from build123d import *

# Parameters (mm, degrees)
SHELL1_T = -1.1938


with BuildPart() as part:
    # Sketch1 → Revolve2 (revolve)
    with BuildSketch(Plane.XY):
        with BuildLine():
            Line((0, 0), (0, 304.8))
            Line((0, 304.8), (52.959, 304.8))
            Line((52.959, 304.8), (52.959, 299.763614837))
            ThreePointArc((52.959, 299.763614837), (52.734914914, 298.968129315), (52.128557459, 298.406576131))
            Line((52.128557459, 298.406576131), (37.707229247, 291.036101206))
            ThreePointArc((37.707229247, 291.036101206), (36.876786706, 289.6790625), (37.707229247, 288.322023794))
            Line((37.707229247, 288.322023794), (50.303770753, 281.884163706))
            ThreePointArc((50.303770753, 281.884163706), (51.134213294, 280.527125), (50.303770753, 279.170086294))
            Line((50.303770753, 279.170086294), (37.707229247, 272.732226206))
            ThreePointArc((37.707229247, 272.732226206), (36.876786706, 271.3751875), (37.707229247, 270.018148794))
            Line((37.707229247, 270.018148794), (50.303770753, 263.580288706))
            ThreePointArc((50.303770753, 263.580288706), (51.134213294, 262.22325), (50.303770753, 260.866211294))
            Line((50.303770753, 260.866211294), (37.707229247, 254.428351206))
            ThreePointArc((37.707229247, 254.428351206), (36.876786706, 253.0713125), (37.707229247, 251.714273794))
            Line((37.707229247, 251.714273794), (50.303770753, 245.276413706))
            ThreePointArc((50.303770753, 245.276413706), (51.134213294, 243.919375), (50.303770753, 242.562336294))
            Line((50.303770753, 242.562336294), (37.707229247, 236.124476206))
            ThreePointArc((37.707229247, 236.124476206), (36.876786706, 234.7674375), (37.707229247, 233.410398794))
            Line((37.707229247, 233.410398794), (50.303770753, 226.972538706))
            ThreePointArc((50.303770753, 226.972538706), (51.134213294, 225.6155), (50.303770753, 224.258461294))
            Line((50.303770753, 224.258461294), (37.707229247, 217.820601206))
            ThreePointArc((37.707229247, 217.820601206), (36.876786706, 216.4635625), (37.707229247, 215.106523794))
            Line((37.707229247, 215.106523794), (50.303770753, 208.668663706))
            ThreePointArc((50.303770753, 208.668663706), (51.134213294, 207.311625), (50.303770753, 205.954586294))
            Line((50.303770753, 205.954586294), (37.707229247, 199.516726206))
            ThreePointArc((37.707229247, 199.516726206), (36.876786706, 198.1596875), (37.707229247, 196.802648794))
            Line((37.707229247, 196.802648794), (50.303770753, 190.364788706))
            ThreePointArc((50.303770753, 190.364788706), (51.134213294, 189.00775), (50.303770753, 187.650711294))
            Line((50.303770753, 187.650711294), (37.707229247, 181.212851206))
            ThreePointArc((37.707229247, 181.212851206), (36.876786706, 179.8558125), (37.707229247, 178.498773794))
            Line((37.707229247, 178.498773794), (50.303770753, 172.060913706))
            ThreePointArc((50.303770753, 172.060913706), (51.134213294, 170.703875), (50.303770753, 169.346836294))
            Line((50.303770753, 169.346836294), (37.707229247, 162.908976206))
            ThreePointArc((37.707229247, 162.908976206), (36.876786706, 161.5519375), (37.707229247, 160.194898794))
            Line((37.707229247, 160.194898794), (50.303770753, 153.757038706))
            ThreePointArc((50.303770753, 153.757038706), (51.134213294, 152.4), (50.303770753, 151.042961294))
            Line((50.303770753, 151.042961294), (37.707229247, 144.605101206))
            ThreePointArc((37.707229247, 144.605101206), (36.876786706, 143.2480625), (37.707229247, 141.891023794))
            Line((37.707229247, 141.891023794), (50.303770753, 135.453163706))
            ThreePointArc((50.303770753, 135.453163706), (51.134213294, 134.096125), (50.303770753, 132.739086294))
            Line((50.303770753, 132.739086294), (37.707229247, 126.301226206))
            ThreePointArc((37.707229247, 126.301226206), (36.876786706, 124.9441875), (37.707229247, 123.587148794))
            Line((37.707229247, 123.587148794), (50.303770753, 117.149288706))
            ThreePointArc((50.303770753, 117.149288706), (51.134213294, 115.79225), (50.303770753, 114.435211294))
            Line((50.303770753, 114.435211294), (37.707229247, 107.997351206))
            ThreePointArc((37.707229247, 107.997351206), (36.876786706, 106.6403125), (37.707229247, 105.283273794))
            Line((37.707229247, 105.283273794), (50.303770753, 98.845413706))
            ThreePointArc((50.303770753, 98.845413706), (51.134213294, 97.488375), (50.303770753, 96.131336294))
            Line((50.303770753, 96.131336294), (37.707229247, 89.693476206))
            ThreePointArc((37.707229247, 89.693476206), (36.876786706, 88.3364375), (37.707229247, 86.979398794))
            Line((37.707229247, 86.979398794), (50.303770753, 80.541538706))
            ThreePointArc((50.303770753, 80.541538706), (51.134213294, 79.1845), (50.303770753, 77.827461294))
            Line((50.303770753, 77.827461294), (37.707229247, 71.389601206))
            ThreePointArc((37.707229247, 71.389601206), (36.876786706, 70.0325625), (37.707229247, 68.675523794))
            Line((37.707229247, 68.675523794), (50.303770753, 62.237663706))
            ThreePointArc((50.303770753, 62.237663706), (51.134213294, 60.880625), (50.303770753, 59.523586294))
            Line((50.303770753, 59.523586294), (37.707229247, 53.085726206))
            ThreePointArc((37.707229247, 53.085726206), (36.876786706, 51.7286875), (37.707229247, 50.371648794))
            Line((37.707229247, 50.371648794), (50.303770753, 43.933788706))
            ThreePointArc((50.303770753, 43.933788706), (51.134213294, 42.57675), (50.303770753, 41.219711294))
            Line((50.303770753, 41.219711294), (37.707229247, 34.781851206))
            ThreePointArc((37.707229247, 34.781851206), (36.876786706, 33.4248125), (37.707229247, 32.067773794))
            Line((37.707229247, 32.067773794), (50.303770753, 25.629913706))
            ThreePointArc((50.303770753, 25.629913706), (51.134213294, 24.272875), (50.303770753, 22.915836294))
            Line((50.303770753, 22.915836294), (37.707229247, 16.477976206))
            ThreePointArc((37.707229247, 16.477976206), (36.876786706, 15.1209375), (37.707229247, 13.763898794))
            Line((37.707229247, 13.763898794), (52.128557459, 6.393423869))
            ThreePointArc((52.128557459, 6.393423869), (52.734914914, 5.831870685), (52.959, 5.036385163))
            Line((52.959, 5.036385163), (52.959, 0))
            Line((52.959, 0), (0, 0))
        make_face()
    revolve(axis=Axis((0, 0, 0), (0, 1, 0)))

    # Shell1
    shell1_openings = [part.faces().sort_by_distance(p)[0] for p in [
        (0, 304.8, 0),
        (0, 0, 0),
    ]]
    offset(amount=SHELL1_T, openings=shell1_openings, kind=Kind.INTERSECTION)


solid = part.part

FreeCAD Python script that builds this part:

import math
import FreeCAD as App
import Part
import Sketcher
Q = App.Units.Quantity


def faces_at(feature, points):
    """Names of the faces that lie closest to the given points."""
    faces = feature.Shape.Faces
    near = lambda p: min(range(len(faces)), key=lambda i: faces[i].distToShape(Part.Vertex(*p))[0])
    return sorted({f"Face{near(p) + 1}" for p in points})

doc = App.newDocument("Part")
body = doc.addObject("PartDesign::Body", "Body")

# Sketch on XY plane
sketch1 = body.newObject("Sketcher::SketchObject", "Sketch")
sketch1.AttachmentSupport = (doc.getObject("XY_Plane"), [""])
sketch1.MapMode = "FlatFace"
sketch1.addGeometry([
    Part.LineSegment(App.Vector(0, 304.8, 0), App.Vector(0, 0, 0)),  # 0
    Part.LineSegment(App.Vector(0, 0, 0), App.Vector(52.959, 0, 0)),  # 1
    Part.LineSegment(App.Vector(52.959, 0, 0), App.Vector(52.959, 5.036385, 0)),  # 2
    Part.ArcOfCircle(Part.Circle(App.Vector(51.435, 5.036385, 0), App.Vector(0, 0, 1), 1.524), math.radians(0), math.radians(62.929262)),  # 3
    Part.LineSegment(App.Vector(52.128557, 6.393424, 0), App.Vector(37.707229, 13.763899, 0)),  # 4
    Part.ArcOfCircle(Part.Circle(App.Vector(38.400787, 15.120938, 0), App.Vector(0, 0, 1), 1.524), math.radians(117.070738), math.radians(242.929262)),  # 5
    Part.LineSegment(App.Vector(37.707229, 16.477976, 0), App.Vector(50.303771, 22.915836, 0)),  # 6
    Part.ArcOfCircle(Part.Circle(App.Vector(49.610213, 24.272875, 0), App.Vector(0, 0, 1), 1.524), math.radians(-62.929262), math.radians(62.929262)),  # 7
    Part.LineSegment(App.Vector(50.303771, 25.629914, 0), App.Vector(37.707229, 32.067774, 0)),  # 8
    Part.ArcOfCircle(Part.Circle(App.Vector(38.400787, 33.424813, 0), App.Vector(0, 0, 1), 1.524), math.radians(117.070738), math.radians(242.929262)),  # 9
    Part.LineSegment(App.Vector(37.707229, 34.781851, 0), App.Vector(50.303771, 41.219711, 0)),  # 10
    Part.ArcOfCircle(Part.Circle(App.Vector(49.610213, 42.57675, 0), App.Vector(0, 0, 1), 1.524), math.radians(-62.929262), math.radians(62.929262)),  # 11
    Part.LineSegment(App.Vector(50.303771, 43.933789, 0), App.Vector(37.707229, 50.371649, 0)),  # 12
    Part.ArcOfCircle(Part.Circle(App.Vector(38.400787, 51.728687, 0), App.Vector(0, 0, 1), 1.524), math.radians(117.070738), math.radians(242.929262)),  # 13
    Part.LineSegment(App.Vector(37.707229, 53.085726, 0), App.Vector(50.303771, 59.523586, 0)),  # 14
    Part.ArcOfCircle(Part.Circle(App.Vector(49.610213, 60.880625, 0), App.Vector(0, 0, 1), 1.524), math.radians(-62.929262), math.radians(62.929262)),  # 15
    Part.LineSegment(App.Vector(50.303771, 62.237664, 0), App.Vector(37.707229, 68.675524, 0)),  # 16
    Part.ArcOfCircle(Part.Circle(App.Vector(38.400787, 70.032562, 0), App.Vector(0, 0, 1), 1.524), math.radians(117.070738), math.radians(242.929262)),  # 17
    Part.LineSegment(App.Vector(37.707229, 71.389601, 0), App.Vector(50.303771, 77.827461, 0)),  # 18
    Part.ArcOfCircle(Part.Circle(App.Vector(49.610213, 79.1845, 0), App.Vector(0, 0, 1), 1.524), math.radians(-62.929262), math.radians(62.929262)),  # 19
    Part.LineSegment(App.Vector(50.303771, 80.541539, 0), App.Vector(37.707229, 86.979399, 0)),  # 20
    Part.ArcOfCircle(Part.Circle(App.Vector(38.400787, 88.336438, 0), App.Vector(0, 0, 1), 1.524), math.radians(117.070738), math.radians(242.929262)),  # 21
    Part.LineSegment(App.Vector(37.707229, 89.693476, 0), App.Vector(50.303771, 96.131336, 0)),  # 22
    Part.ArcOfCircle(Part.Circle(App.Vector(49.610213, 97.488375, 0), App.Vector(0, 0, 1), 1.524), math.radians(-62.929262), math.radians(62.929262)),  # 23
    Part.LineSegment(App.Vector(50.303771, 98.845414, 0), App.Vector(37.707229, 105.283274, 0)),  # 24
    Part.ArcOfCircle(Part.Circle(App.Vector(38.400787, 106.640312, 0), App.Vector(0, 0, 1), 1.524), math.radians(117.070738), math.radians(242.929262)),  # 25
    Part.LineSegment(App.Vector(37.707229, 107.997351, 0), App.Vector(50.303771, 114.435211, 0)),  # 26
    Part.ArcOfCircle(Part.Circle(App.Vector(49.610213, 115.79225, 0), App.Vector(0, 0, 1), 1.524), math.radians(-62.929262), math.radians(62.929262)),  # 27
    Part.LineSegment(App.Vector(50.303771, 117.149289, 0), App.Vector(37.707229, 123.587149, 0)),  # 28
    Part.ArcOfCircle(Part.Circle(App.Vector(38.400787, 124.944187, 0), App.Vector(0, 0, 1), 1.524), math.radians(117.070738), math.radians(242.929262)),  # 29
    Part.LineSegment(App.Vector(37.707229, 126.301226, 0), App.Vector(50.303771, 132.739086, 0)),  # 30
    Part.ArcOfCircle(Part.Circle(App.Vector(49.610213, 134.096125, 0), App.Vector(0, 0, 1), 1.524), math.radians(-62.929262), math.radians(62.929262)),  # 31
    Part.LineSegment(App.Vector(50.303771, 135.453164, 0), App.Vector(37.707229, 141.891024, 0)),  # 32
    Part.ArcOfCircle(Part.Circle(App.Vector(38.400787, 143.248063, 0), App.Vector(0, 0, 1), 1.524), math.radians(117.070738), math.radians(242.929262)),  # 33
    Part.LineSegment(App.Vector(37.707229, 144.605101, 0), App.Vector(50.303771, 151.042961, 0)),  # 34
    Part.ArcOfCircle(Part.Circle(App.Vector(49.610213, 152.4, 0), App.Vector(0, 0, 1), 1.524), math.radians(-62.929262), math.radians(62.929262)),  # 35
    Part.LineSegment(App.Vector(50.303771, 153.757039, 0), App.Vector(37.707229, 160.194899, 0)),  # 36
    Part.ArcOfCircle(Part.Circle(App.Vector(38.400787, 161.551938, 0), App.Vector(0, 0, 1), 1.524), math.radians(117.070738), math.radians(242.929262)),  # 37
    Part.LineSegment(App.Vector(37.707229, 162.908976, 0), App.Vector(50.303771, 169.346836, 0)),  # 38
    Part.ArcOfCircle(Part.Circle(App.Vector(49.610213, 170.703875, 0), App.Vector(0, 0, 1), 1.524), math.radians(-62.929262), math.radians(62.929262)),  # 39
    Part.LineSegment(App.Vector(50.303771, 172.060914, 0), App.Vector(37.707229, 178.498774, 0)),  # 40
    Part.ArcOfCircle(Part.Circle(App.Vector(38.400787, 179.855813, 0), App.Vector(0, 0, 1), 1.524), math.radians(117.070738), math.radians(242.929262)),  # 41
    Part.LineSegment(App.Vector(37.707229, 181.212851, 0), App.Vector(50.303771, 187.650711, 0)),  # 42
    Part.ArcOfCircle(Part.Circle(App.Vector(49.610213, 189.00775, 0), App.Vector(0, 0, 1), 1.524), math.radians(-62.929262), math.radians(62.929262)),  # 43
    Part.LineSegment(App.Vector(50.303771, 190.364789, 0), App.Vector(37.707229, 196.802649, 0)),  # 44
    Part.ArcOfCircle(Part.Circle(App.Vector(38.400787, 198.159687, 0), App.Vector(0, 0, 1), 1.524), math.radians(117.070738), math.radians(242.929262)),  # 45
    Part.LineSegment(App.Vector(37.707229, 199.516726, 0), App.Vector(50.303771, 205.954586, 0)),  # 46
    Part.ArcOfCircle(Part.Circle(App.Vector(49.610213, 207.311625, 0), App.Vector(0, 0, 1), 1.524), math.radians(-62.929262), math.radians(62.929262)),  # 47
    Part.LineSegment(App.Vector(50.303771, 208.668664, 0), App.Vector(37.707229, 215.106524, 0)),  # 48
    Part.ArcOfCircle(Part.Circle(App.Vector(38.400787, 216.463562, 0), App.Vector(0, 0, 1), 1.524), math.radians(117.070738), math.radians(242.929262)),  # 49
    Part.LineSegment(App.Vector(37.707229, 217.820601, 0), App.Vector(50.303771, 224.258461, 0)),  # 50
    Part.ArcOfCircle(Part.Circle(App.Vector(49.610213, 225.6155, 0), App.Vector(0, 0, 1), 1.524), math.radians(-62.929262), math.radians(62.929262)),  # 51
    Part.LineSegment(App.Vector(50.303771, 226.972539, 0), App.Vector(37.707229, 233.410399, 0)),  # 52
    Part.ArcOfCircle(Part.Circle(App.Vector(38.400787, 234.767437, 0), App.Vector(0, 0, 1), 1.524), math.radians(117.070738), math.radians(242.929262)),  # 53
    Part.LineSegment(App.Vector(37.707229, 236.124476, 0), App.Vector(50.303771, 242.562336, 0)),  # 54
    Part.ArcOfCircle(Part.Circle(App.Vector(49.610213, 243.919375, 0), App.Vector(0, 0, 1), 1.524), math.radians(-62.929262), math.radians(62.929262)),  # 55
    Part.LineSegment(App.Vector(50.303771, 245.276414, 0), App.Vector(37.707229, 251.714274, 0)),  # 56
    Part.ArcOfCircle(Part.Circle(App.Vector(38.400787, 253.071313, 0), App.Vector(0, 0, 1), 1.524), math.radians(117.070738), math.radians(242.929262)),  # 57
    Part.LineSegment(App.Vector(37.707229, 254.428351, 0), App.Vector(50.303771, 260.866211, 0)),  # 58
    Part.ArcOfCircle(Part.Circle(App.Vector(49.610213, 262.22325, 0), App.Vector(0, 0, 1), 1.524), math.radians(-62.929262), math.radians(62.929262)),  # 59
    Part.LineSegment(App.Vector(50.303771, 263.580289, 0), App.Vector(37.707229, 270.018149, 0)),  # 60
    Part.ArcOfCircle(Part.Circle(App.Vector(38.400787, 271.375187, 0), App.Vector(0, 0, 1), 1.524), math.radians(117.070738), math.radians(242.929262)),  # 61
    Part.LineSegment(App.Vector(37.707229, 272.732226, 0), App.Vector(50.303771, 279.170086, 0)),  # 62
    Part.ArcOfCircle(Part.Circle(App.Vector(49.610213, 280.527125, 0), App.Vector(0, 0, 1), 1.524), math.radians(-62.929262), math.radians(62.929262)),  # 63
    Part.LineSegment(App.Vector(50.303771, 281.884164, 0), App.Vector(37.707229, 288.322024, 0)),  # 64
    Part.ArcOfCircle(Part.Circle(App.Vector(38.400787, 289.679062, 0), App.Vector(0, 0, 1), 1.524), math.radians(117.070738), math.radians(242.929262)),  # 65
    Part.LineSegment(App.Vector(37.707229, 291.036101, 0), App.Vector(52.128557, 298.406576, 0)),  # 66
    Part.ArcOfCircle(Part.Circle(App.Vector(51.435, 299.763615, 0), App.Vector(0, 0, 1), 1.524), math.radians(-62.929262), math.radians(0)),  # 67
    Part.LineSegment(App.Vector(52.959, 299.763615, 0), App.Vector(52.959, 304.8, 0)),  # 68
    Part.LineSegment(App.Vector(52.959, 304.8, 0), App.Vector(0, 304.8, 0)),  # 69
], False)
sketch1.addConstraint([
    Sketcher.Constraint("Coincident", 0, 2, 1, 1),
    Sketcher.Constraint("Coincident", 1, 2, 2, 1),
    Sketcher.Constraint("Tangent", 2, 2, 3, 1),
    Sketcher.Constraint("Tangent", 3, 2, 4, 1),
    Sketcher.Constraint("Tangent", 4, 2, 5, 2),
    Sketcher.Constraint("Tangent", 5, 1, 6, 1),
    Sketcher.Constraint("Tangent", 6, 2, 7, 1),
    Sketcher.Constraint("Tangent", 7, 2, 8, 1),
    Sketcher.Constraint("Tangent", 8, 2, 9, 2),
    Sketcher.Constraint("Tangent", 9, 1, 10, 1),
    Sketcher.Constraint("Tangent", 10, 2, 11, 1),
    Sketcher.Constraint("Tangent", 11, 2, 12, 1),
    Sketcher.Constraint("Tangent", 12, 2, 13, 2),
    Sketcher.Constraint("Tangent", 13, 1, 14, 1),
    Sketcher.Constraint("Tangent", 14, 2, 15, 1),
    Sketcher.Constraint("Tangent", 15, 2, 16, 1),
    Sketcher.Constraint("Tangent", 16, 2, 17, 2),
    Sketcher.Constraint("Tangent", 17, 1, 18, 1),
    Sketcher.Constraint("Tangent", 18, 2, 19, 1),
    Sketcher.Constraint("Tangent", 19, 2, 20, 1),
    Sketcher.Constraint("Tangent", 20, 2, 21, 2),
    Sketcher.Constraint("Tangent", 21, 1, 22, 1),
    Sketcher.Constraint("Tangent", 22, 2, 23, 1),
    Sketcher.Constraint("Tangent", 23, 2, 24, 1),
    Sketcher.Constraint("Tangent", 24, 2, 25, 2),
    Sketcher.Constraint("Tangent", 25, 1, 26, 1),
    Sketcher.Constraint("Tangent", 26, 2, 27, 1),
    Sketcher.Constraint("Tangent", 27, 2, 28, 1),
    Sketcher.Constraint("Tangent", 28, 2, 29, 2),
    Sketcher.Constraint("Tangent", 29, 1, 30, 1),
    Sketcher.Constraint("Tangent", 30, 2, 31, 1),
    Sketcher.Constraint("Tangent", 31, 2, 32, 1),
    Sketcher.Constraint("Tangent", 32, 2, 33, 2),
    Sketcher.Constraint("Tangent", 33, 1, 34, 1),
    Sketcher.Constraint("Tangent", 34, 2, 35, 1),
    Sketcher.Constraint("Tangent", 35, 2, 36, 1),
    Sketcher.Constraint("Tangent", 36, 2, 37, 2),
    Sketcher.Constraint("Tangent", 37, 1, 38, 1),
    Sketcher.Constraint("Tangent", 38, 2, 39, 1),
    Sketcher.Constraint("Tangent", 39, 2, 40, 1),
    Sketcher.Constraint("Tangent", 40, 2, 41, 2),
    Sketcher.Constraint("Tangent", 41, 1, 42, 1),
    Sketcher.Constraint("Tangent", 42, 2, 43, 1),
    Sketcher.Constraint("Tangent", 43, 2, 44, 1),
    Sketcher.Constraint("Tangent", 44, 2, 45, 2),
    Sketcher.Constraint("Tangent", 45, 1, 46, 1),
    Sketcher.Constraint("Tangent", 46, 2, 47, 1),
    Sketcher.Constraint("Tangent", 47, 2, 48, 1),
    Sketcher.Constraint("Tangent", 48, 2, 49, 2),
    Sketcher.Constraint("Tangent", 49, 1, 50, 1),
    Sketcher.Constraint("Tangent", 50, 2, 51, 1),
    Sketcher.Constraint("Tangent", 51, 2, 52, 1),
    Sketcher.Constraint("Tangent", 52, 2, 53, 2),
    Sketcher.Constraint("Tangent", 53, 1, 54, 1),
    Sketcher.Constraint("Tangent", 54, 2, 55, 1),
    Sketcher.Constraint("Tangent", 55, 2, 56, 1),
    Sketcher.Constraint("Tangent", 56, 2, 57, 2),
    Sketcher.Constraint("Tangent", 57, 1, 58, 1),
    Sketcher.Constraint("Tangent", 58, 2, 59, 1),
    Sketcher.Constraint("Tangent", 59, 2, 60, 1),
    Sketcher.Constraint("Tangent", 60, 2, 61, 2),
    Sketcher.Constraint("Tangent", 61, 1, 62, 1),
    Sketcher.Constraint("Tangent", 62, 2, 63, 1),
    Sketcher.Constraint("Tangent", 63, 2, 64, 1),
    Sketcher.Constraint("Tangent", 64, 2, 65, 2),
    Sketcher.Constraint("Tangent", 65, 1, 66, 1),
    Sketcher.Constraint("Tangent", 66, 2, 67, 1),
    Sketcher.Constraint("Tangent", 67, 2, 68, 1),
    Sketcher.Constraint("Coincident", 68, 2, 69, 1),
    Sketcher.Constraint("Coincident", 69, 2, 0, 1),
    Sketcher.Constraint("Vertical", 0),
    Sketcher.Constraint("Horizontal", 1),
    Sketcher.Constraint("Vertical", 2),
    Sketcher.Constraint("Vertical", 68),
    Sketcher.Constraint("Horizontal", 69),
    Sketcher.Constraint("Coincident", 0, 2, -1, 1),
    Sketcher.Constraint("Equal", 3, 5),
    Sketcher.Constraint("Equal", 5, 7),
    Sketcher.Constraint("Equal", 7, 9),
    Sketcher.Constraint("Equal", 9, 11),
    Sketcher.Constraint("Equal", 11, 13),
    Sketcher.Constraint("Equal", 13, 15),
    Sketcher.Constraint("Equal", 15, 17),
    Sketcher.Constraint("Equal", 17, 19),
    Sketcher.Constraint("Equal", 19, 21),
    Sketcher.Constraint("Equal", 21, 23),
    Sketcher.Constraint("Equal", 23, 25),
    Sketcher.Constraint("Equal", 25, 27),
    Sketcher.Constraint("Equal", 27, 29),
    Sketcher.Constraint("Equal", 29, 31),
    Sketcher.Constraint("Equal", 31, 33),
    Sketcher.Constraint("Equal", 33, 35),
    Sketcher.Constraint("Equal", 35, 37),
    Sketcher.Constraint("Equal", 37, 39),
    Sketcher.Constraint("Equal", 39, 41),
    Sketcher.Constraint("Equal", 41, 43),
    Sketcher.Constraint("Equal", 43, 45),
    Sketcher.Constraint("Equal", 45, 47),
    Sketcher.Constraint("Equal", 47, 49),
    Sketcher.Constraint("Equal", 49, 51),
    Sketcher.Constraint("Equal", 51, 53),
    Sketcher.Constraint("Equal", 53, 55),
    Sketcher.Constraint("Equal", 55, 57),
    Sketcher.Constraint("Equal", 57, 59),
    Sketcher.Constraint("Equal", 59, 61),
    Sketcher.Constraint("Equal", 61, 63),
    Sketcher.Constraint("Equal", 63, 65),
    Sketcher.Constraint("Equal", 65, 67),
    Sketcher.Constraint("Parallel", 4, 8),
    Sketcher.Constraint("Parallel", 6, 10),
    Sketcher.Constraint("Parallel", 8, 12),
    Sketcher.Constraint("Parallel", 10, 14),
    Sketcher.Constraint("Parallel", 12, 16),
    Sketcher.Constraint("Parallel", 14, 18),
    Sketcher.Constraint("Parallel", 16, 20),
    Sketcher.Constraint("Parallel", 18, 22),
    Sketcher.Constraint("Parallel", 20, 24),
    Sketcher.Constraint("Parallel", 22, 26),
    Sketcher.Constraint("Parallel", 24, 28),
    Sketcher.Constraint("Parallel", 26, 30),
    Sketcher.Constraint("Parallel", 28, 32),
    Sketcher.Constraint("Parallel", 30, 34),
    Sketcher.Constraint("Parallel", 32, 36),
    Sketcher.Constraint("Parallel", 34, 38),
    Sketcher.Constraint("Parallel", 36, 40),
    Sketcher.Constraint("Parallel", 38, 42),
    Sketcher.Constraint("Parallel", 40, 44),
    Sketcher.Constraint("Parallel", 42, 46),
    Sketcher.Constraint("Parallel", 44, 48),
    Sketcher.Constraint("Parallel", 46, 50),
    Sketcher.Constraint("Parallel", 48, 52),
    Sketcher.Constraint("Parallel", 50, 54),
    Sketcher.Constraint("Parallel", 52, 56),
    Sketcher.Constraint("Parallel", 54, 58),
    Sketcher.Constraint("Parallel", 56, 60),
    Sketcher.Constraint("Parallel", 58, 62),
    Sketcher.Constraint("Parallel", 60, 64),
    Sketcher.Constraint("Parallel", 62, 66),
    Sketcher.Constraint("Vertical", 5, 3, 9, 3),
    Sketcher.Constraint("Vertical", 7, 3, 11, 3),
    Sketcher.Constraint("Vertical", 9, 3, 13, 3),
    Sketcher.Constraint("Vertical", 11, 3, 15, 3),
    Sketcher.Constraint("Vertical", 13, 3, 17, 3),
    Sketcher.Constraint("Vertical", 15, 3, 19, 3),
    Sketcher.Constraint("Vertical", 17, 3, 21, 3),
    Sketcher.Constraint("Vertical", 19, 3, 23, 3),
    Sketcher.Constraint("Vertical", 21, 3, 25, 3),
    Sketcher.Constraint("Vertical", 23, 3, 27, 3),
    Sketcher.Constraint("Vertical", 25, 3, 29, 3),
    Sketcher.Constraint("Vertical", 27, 3, 31, 3),
    Sketcher.Constraint("Vertical", 29, 3, 33, 3),
    Sketcher.Constraint("Vertical", 31, 3, 35, 3),
    Sketcher.Constraint("Vertical", 33, 3, 37, 3),
    Sketcher.Constraint("Vertical", 35, 3, 39, 3),
    Sketcher.Constraint("Vertical", 37, 3, 41, 3),
    Sketcher.Constraint("Vertical", 39, 3, 43, 3),
    Sketcher.Constraint("Vertical", 41, 3, 45, 3),
    Sketcher.Constraint("Vertical", 43, 3, 47, 3),
    Sketcher.Constraint("Vertical", 45, 3, 49, 3),
    Sketcher.Constraint("Vertical", 47, 3, 51, 3),
    Sketcher.Constraint("Vertical", 49, 3, 53, 3),
    Sketcher.Constraint("Vertical", 51, 3, 55, 3),
    Sketcher.Constraint("Vertical", 53, 3, 57, 3),
    Sketcher.Constraint("Vertical", 55, 3, 59, 3),
    Sketcher.Constraint("Vertical", 57, 3, 61, 3),
    Sketcher.Constraint("Vertical", 59, 3, 63, 3),
    Sketcher.Constraint("Vertical", 61, 3, 65, 3),
    Sketcher.Constraint("Vertical", 3, 3, 67, 3),
    Sketcher.Constraint("Vertical", 4, 2, 5, 1),
    Sketcher.Constraint("Equal", 2, 68),
    Sketcher.Constraint("DistanceY", 0, 2, 0, 1, Q("12 in")),
    Sketcher.Constraint("Radius", 3, Q("0.06 in")),
    Sketcher.Constraint("DistanceX", 1, 1, 1, 2, Q("2.085 in")),
    Sketcher.Constraint("DistanceY", -1, 1, 19, 3, Q("3.1175 in")),
    Sketcher.Constraint("DistanceY", -1, 1, 4, 2, 13.763899),
    Sketcher.Constraint("DistanceY", 2, 1, 2, 2, 5.036385),
])
revolution = body.newObject("PartDesign::Revolution", "Revolution")
revolution.Profile = sketch1
revolution.ReferenceAxis = (sketch1, ["V_Axis"])
revolution.Angle = 360
doc.recompute()

thickness = body.newObject("PartDesign::Thickness", "Thickness")
thickness.Base = (revolution, faces_at(revolution, [(0, 304.8, 0), (0, 0, 0)]))
thickness.Value = Q("0.047 in")
thickness.Reversed = True
thickness.Join = "Intersection"

doc.recompute()
